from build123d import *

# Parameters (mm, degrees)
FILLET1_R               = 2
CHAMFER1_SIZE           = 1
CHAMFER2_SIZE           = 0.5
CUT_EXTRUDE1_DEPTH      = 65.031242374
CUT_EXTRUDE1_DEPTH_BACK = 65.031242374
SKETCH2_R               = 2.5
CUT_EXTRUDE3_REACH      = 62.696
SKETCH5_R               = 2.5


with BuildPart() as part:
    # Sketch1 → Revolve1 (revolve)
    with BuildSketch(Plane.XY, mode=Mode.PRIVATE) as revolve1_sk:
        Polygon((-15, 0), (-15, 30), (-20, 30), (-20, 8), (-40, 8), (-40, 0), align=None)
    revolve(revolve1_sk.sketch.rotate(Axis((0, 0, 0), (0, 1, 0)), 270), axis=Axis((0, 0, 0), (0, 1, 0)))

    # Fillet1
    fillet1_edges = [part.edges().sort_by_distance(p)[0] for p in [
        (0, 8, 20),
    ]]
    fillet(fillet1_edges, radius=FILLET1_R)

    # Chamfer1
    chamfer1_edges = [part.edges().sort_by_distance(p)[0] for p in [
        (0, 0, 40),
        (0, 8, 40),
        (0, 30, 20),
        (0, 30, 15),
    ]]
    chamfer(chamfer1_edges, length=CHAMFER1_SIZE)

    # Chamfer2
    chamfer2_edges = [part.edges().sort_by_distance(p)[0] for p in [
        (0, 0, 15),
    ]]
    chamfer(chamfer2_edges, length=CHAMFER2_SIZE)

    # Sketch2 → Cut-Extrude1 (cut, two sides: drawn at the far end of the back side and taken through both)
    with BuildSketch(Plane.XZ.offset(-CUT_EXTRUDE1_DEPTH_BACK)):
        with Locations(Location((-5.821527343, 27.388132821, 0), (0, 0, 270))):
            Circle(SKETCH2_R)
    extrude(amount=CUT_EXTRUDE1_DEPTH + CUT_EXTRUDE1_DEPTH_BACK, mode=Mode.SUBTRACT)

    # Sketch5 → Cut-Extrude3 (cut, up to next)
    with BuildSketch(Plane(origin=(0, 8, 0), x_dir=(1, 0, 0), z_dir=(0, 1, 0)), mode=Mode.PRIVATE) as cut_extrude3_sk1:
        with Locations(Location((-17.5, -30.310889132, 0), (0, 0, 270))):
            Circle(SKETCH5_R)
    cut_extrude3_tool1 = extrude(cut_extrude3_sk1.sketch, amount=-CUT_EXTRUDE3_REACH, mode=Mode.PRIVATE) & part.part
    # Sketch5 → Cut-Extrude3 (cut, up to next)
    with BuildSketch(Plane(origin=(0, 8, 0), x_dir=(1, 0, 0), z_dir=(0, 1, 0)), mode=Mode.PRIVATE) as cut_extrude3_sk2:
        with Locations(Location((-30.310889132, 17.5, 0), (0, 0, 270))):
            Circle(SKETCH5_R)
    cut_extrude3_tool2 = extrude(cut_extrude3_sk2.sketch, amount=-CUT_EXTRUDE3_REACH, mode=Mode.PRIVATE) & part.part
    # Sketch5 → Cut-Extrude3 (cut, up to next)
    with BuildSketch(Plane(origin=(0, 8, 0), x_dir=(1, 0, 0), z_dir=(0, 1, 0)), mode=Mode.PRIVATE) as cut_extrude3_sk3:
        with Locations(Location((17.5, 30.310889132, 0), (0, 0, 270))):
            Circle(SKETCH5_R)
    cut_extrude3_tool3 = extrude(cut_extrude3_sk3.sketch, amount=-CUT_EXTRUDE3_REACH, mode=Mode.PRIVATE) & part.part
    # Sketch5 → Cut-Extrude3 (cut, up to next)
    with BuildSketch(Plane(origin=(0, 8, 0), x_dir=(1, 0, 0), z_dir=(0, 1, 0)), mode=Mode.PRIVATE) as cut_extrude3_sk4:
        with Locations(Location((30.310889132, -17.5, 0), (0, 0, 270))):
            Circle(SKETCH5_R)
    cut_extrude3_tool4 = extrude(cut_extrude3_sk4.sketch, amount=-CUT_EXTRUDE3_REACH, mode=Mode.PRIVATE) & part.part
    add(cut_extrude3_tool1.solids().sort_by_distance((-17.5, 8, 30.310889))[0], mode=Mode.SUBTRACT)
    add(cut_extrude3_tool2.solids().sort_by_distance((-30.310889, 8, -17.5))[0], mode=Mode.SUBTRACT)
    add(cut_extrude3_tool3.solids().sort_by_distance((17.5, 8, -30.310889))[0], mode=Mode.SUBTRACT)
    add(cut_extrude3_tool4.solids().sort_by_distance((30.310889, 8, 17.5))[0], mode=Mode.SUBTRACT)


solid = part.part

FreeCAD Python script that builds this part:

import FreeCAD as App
import Part
import Sketcher
Q = App.Units.Quantity


def edges_at(feature, points):
    """Names of the edges that pass closest to the given points."""
    edges = feature.Shape.Edges
    near = lambda p: min(range(len(edges)), key=lambda i: edges[i].distToShape(Part.Vertex(*p))[0])
    return sorted({f"Edge{near(p) + 1}" for p in points})

doc = App.newDocument("Part")
body = doc.addObject("PartDesign::Body", "Body")

# Sketch on XY plane
sketch1 = body.newObject("Sketcher::SketchObject", "Sketch")
sketch1.AttachmentSupport = (doc.getObject("XY_Plane"), [""])
sketch1.MapMode = "FlatFace"
sketch1.addGeometry([
    Part.LineSegment(App.Vector(-15, 0, 0), App.Vector(-15, 30, 0)),  # 0
    Part.LineSegment(App.Vector(-15, 30, 0), App.Vector(-20, 30, 0)),  # 1
    Part.LineSegment(App.Vector(-20, 30, 0), App.Vector(-20, 8, 0)),  # 2
    Part.LineSegment(App.Vector(-20, 8, 0), App.Vector(-40, 8, 0)),  # 3
    Part.LineSegment(App.Vector(-40, 8, 0), App.Vector(-40, 0, 0)),  # 4
    Part.LineSegment(App.Vector(-40, 0, 0), App.Vector(-15, 0, 0)),  # 5
], False)
sketch1.addConstraint([
    Sketcher.Constraint("Coincident", 0, 2, 1, 1),
    Sketcher.Constraint("Coincident", 1, 2, 2, 1),
    Sketcher.Constraint("Coincident", 2, 2, 3, 1),
    Sketcher.Constraint("Coincident", 3, 2, 4, 1),
    Sketcher.Constraint("Coincident", 4, 2, 5, 1),
    Sketcher.Constraint("Coincident", 5, 2, 0, 1),
    Sketcher.Constraint("Vertical", 0),
    Sketcher.Constraint("Horizontal", 1),
    Sketcher.Constraint("Vertical", 2),
    Sketcher.Constraint("Horizontal", 3),
    Sketcher.Constraint("Vertical", 4),
    Sketcher.Constraint("Horizontal", 5),
    Sketcher.Constraint("PointOnObject", 4, 2, -1),
    Sketcher.Constraint("DistanceX", 1, 2, 1, 1, Q("5 mm")),
    Sketcher.Constraint("DistanceX", 3, 2, 3, 1, Q("20 mm")),
    Sketcher.Constraint("DistanceY", 0, 1, 0, 2, Q("30 mm")),
    Sketcher.Constraint("DistanceY", 2, 2, 2, 1, Q("22 mm")),
    Sketcher.Constraint("DistanceX", 0, 2, -1, 1, Q("15 mm")),
])
revolution = body.newObject("PartDesign::Revolution", "Revolution")
revolution.Profile = sketch1
revolution.ReferenceAxis = (sketch1, ["V_Axis"])
revolution.Angle = 360
doc.recompute()

fillet = body.newObject("PartDesign::Fillet", "Fillet")
fillet.Base = (revolution, edges_at(revolution, [(0, 8, 20)]))
fillet.Radius = 2
doc.recompute()

chamfer = body.newObject("PartDesign::Chamfer", "Chamfer")
chamfer.Base = (fillet, edges_at(fillet, [
    (0, 0, 40),
    (0, 8, 40),
    (0, 30, 20),
    (0, 30, 15),
]))
chamfer.Size = 1
doc.recompute()

chamfer2 = body.newObject("PartDesign::Chamfer", "Chamfer001")
chamfer2.Base = (chamfer, edges_at(chamfer, [(0, 0, 15)]))
chamfer2.Size = 0.5

# Sketch on XZ plane
sketch2 = body.newObject("Sketcher::SketchObject", "Sketch001")
sketch2.AttachmentSupport = (doc.getObject("XZ_Plane"), [""])
sketch2.MapMode = "FlatFace"
sketch2.addGeometry(Part.Circle(App.Vector(-5.8, 27.4, 0), App.Vector(0, 0, 1), 2.5), False)
sketch2.addConstraint([
    Sketcher.Constraint("Diameter", 0, Q("5 mm")),
    Sketcher.Constraint("DistanceX", 0, 3, -1, 1, Q("5.821527 mm")),
    Sketcher.Constraint("DistanceY", -1, 1, 0, 3, Q("27.388133 mm")),
])
pocket1 = body.newObject("PartDesign::Pocket", "Pocket")
pocket1.Profile = sketch2
pocket1.Type = "ThroughAll"
pocket1.Midplane = True

# Sketch on XZ plane
sketch3 = body.newObject("Sketcher::SketchObject", "Sketch002")
sketch3.AttachmentSupport = (doc.getObject("XZ_Plane"), [""])
sketch3.MapMode = "FlatFace"
sketch3.AttachmentOffset = App.Placement(App.Vector(0, 0, -8), App.Rotation())
sketch3.addGeometry(Part.Circle(App.Vector(-17.5, 30.3, 0), App.Vector(0, 0, 1), 2.5), False)
sketch3.addConstraint([
    Sketcher.Constraint("Diameter", 0, Q("5 mm")),
    Sketcher.Constraint("DistanceX", 0, 3, -1, 1, Q("17.5 mm")),
    Sketcher.Constraint("DistanceY", -1, 1, 0, 3, Q("30.310889 mm")),
])
pocket2 = body.newObject("PartDesign::Pocket", "Pocket001")
pocket2.Profile = sketch3
pocket2.Type = "UpToFirst"
pocket2.Reversed = True

# Sketch on XZ plane
sketch4 = body.newObject("Sketcher::SketchObject", "Sketch003")
sketch4.AttachmentSupport = (doc.getObject("XZ_Plane"), [""])
sketch4.MapMode = "FlatFace"
sketch4.AttachmentOffset = App.Placement(App.Vector(0, 0, -8), App.Rotation())
sketch4.addGeometry(Part.Circle(App.Vector(-30.3, -17.5, 0), App.Vector(0, 0, 1), 2.5), False)
sketch4.addConstraint([
    Sketcher.Constraint("Diameter", 0, Q("5 mm")),
    Sketcher.Constraint("DistanceY", 0, 3, -1, 1, Q("17.5 mm")),
    Sketcher.Constraint("DistanceX", 0, 3, -1, 1, Q("30.310889 mm")),
])
pocket3 = body.newObject("PartDesign::Pocket", "Pocket002")
pocket3.Profile = sketch4
pocket3.Type = "UpToFirst"
pocket3.Reversed = True

# Sketch on XZ plane
sketch5 = body.newObject("Sketcher::SketchObject", "Sketch004")
sketch5.AttachmentSupport = (doc.getObject("XZ_Plane"), [""])
sketch5.MapMode = "FlatFace"
sketch5.AttachmentOffset = App.Placement(App.Vector(0, 0, -8), App.Rotation())
sketch5.addGeometry(Part.Circle(App.Vector(17.5, -30.3, 0), App.Vector(0, 0, 1), 2.5), False)
sketch5.addConstraint([
    Sketcher.Constraint("Diameter", 0, Q("5 mm")),
    Sketcher.Constraint("DistanceX", -1, 1, 0, 3, Q("17.5 mm")),
    Sketcher.Constraint("DistanceY", 0, 3, -1, 1, Q("30.310889 mm")),
])
pocket4 = body.newObject("PartDesign::Pocket", "Pocket003")
pocket4.Profile = sketch5
pocket4.Type = "UpToFirst"
pocket4.Reversed = True

# Sketch on XZ plane
sketch6 = body.newObject("Sketcher::SketchObject", "Sketch005")
sketch6.AttachmentSupport = (doc.getObject("XZ_Plane"), [""])
sketch6.MapMode = "FlatFace"
sketch6.AttachmentOffset = App.Placement(App.Vector(0, 0, -8), App.Rotation())
sketch6.addGeometry(Part.Circle(App.Vector(30.3, 17.5, 0), App.Vector(0, 0, 1), 2.5), False)
sketch6.addConstraint([
    Sketcher.Constraint("Diameter", 0, Q("5 mm")),
    Sketcher.Constraint("DistanceY", -1, 1, 0, 3, Q("17.5 mm")),
    Sketcher.Constraint("DistanceX", -1, 1, 0, 3, Q("30.310889 mm")),
])
pocket5 = body.newObject("PartDesign::Pocket", "Pocket004")
pocket5.Profile = sketch6
pocket5.Type = "UpToFirst"
pocket5.Reversed = True

doc.recompute()
